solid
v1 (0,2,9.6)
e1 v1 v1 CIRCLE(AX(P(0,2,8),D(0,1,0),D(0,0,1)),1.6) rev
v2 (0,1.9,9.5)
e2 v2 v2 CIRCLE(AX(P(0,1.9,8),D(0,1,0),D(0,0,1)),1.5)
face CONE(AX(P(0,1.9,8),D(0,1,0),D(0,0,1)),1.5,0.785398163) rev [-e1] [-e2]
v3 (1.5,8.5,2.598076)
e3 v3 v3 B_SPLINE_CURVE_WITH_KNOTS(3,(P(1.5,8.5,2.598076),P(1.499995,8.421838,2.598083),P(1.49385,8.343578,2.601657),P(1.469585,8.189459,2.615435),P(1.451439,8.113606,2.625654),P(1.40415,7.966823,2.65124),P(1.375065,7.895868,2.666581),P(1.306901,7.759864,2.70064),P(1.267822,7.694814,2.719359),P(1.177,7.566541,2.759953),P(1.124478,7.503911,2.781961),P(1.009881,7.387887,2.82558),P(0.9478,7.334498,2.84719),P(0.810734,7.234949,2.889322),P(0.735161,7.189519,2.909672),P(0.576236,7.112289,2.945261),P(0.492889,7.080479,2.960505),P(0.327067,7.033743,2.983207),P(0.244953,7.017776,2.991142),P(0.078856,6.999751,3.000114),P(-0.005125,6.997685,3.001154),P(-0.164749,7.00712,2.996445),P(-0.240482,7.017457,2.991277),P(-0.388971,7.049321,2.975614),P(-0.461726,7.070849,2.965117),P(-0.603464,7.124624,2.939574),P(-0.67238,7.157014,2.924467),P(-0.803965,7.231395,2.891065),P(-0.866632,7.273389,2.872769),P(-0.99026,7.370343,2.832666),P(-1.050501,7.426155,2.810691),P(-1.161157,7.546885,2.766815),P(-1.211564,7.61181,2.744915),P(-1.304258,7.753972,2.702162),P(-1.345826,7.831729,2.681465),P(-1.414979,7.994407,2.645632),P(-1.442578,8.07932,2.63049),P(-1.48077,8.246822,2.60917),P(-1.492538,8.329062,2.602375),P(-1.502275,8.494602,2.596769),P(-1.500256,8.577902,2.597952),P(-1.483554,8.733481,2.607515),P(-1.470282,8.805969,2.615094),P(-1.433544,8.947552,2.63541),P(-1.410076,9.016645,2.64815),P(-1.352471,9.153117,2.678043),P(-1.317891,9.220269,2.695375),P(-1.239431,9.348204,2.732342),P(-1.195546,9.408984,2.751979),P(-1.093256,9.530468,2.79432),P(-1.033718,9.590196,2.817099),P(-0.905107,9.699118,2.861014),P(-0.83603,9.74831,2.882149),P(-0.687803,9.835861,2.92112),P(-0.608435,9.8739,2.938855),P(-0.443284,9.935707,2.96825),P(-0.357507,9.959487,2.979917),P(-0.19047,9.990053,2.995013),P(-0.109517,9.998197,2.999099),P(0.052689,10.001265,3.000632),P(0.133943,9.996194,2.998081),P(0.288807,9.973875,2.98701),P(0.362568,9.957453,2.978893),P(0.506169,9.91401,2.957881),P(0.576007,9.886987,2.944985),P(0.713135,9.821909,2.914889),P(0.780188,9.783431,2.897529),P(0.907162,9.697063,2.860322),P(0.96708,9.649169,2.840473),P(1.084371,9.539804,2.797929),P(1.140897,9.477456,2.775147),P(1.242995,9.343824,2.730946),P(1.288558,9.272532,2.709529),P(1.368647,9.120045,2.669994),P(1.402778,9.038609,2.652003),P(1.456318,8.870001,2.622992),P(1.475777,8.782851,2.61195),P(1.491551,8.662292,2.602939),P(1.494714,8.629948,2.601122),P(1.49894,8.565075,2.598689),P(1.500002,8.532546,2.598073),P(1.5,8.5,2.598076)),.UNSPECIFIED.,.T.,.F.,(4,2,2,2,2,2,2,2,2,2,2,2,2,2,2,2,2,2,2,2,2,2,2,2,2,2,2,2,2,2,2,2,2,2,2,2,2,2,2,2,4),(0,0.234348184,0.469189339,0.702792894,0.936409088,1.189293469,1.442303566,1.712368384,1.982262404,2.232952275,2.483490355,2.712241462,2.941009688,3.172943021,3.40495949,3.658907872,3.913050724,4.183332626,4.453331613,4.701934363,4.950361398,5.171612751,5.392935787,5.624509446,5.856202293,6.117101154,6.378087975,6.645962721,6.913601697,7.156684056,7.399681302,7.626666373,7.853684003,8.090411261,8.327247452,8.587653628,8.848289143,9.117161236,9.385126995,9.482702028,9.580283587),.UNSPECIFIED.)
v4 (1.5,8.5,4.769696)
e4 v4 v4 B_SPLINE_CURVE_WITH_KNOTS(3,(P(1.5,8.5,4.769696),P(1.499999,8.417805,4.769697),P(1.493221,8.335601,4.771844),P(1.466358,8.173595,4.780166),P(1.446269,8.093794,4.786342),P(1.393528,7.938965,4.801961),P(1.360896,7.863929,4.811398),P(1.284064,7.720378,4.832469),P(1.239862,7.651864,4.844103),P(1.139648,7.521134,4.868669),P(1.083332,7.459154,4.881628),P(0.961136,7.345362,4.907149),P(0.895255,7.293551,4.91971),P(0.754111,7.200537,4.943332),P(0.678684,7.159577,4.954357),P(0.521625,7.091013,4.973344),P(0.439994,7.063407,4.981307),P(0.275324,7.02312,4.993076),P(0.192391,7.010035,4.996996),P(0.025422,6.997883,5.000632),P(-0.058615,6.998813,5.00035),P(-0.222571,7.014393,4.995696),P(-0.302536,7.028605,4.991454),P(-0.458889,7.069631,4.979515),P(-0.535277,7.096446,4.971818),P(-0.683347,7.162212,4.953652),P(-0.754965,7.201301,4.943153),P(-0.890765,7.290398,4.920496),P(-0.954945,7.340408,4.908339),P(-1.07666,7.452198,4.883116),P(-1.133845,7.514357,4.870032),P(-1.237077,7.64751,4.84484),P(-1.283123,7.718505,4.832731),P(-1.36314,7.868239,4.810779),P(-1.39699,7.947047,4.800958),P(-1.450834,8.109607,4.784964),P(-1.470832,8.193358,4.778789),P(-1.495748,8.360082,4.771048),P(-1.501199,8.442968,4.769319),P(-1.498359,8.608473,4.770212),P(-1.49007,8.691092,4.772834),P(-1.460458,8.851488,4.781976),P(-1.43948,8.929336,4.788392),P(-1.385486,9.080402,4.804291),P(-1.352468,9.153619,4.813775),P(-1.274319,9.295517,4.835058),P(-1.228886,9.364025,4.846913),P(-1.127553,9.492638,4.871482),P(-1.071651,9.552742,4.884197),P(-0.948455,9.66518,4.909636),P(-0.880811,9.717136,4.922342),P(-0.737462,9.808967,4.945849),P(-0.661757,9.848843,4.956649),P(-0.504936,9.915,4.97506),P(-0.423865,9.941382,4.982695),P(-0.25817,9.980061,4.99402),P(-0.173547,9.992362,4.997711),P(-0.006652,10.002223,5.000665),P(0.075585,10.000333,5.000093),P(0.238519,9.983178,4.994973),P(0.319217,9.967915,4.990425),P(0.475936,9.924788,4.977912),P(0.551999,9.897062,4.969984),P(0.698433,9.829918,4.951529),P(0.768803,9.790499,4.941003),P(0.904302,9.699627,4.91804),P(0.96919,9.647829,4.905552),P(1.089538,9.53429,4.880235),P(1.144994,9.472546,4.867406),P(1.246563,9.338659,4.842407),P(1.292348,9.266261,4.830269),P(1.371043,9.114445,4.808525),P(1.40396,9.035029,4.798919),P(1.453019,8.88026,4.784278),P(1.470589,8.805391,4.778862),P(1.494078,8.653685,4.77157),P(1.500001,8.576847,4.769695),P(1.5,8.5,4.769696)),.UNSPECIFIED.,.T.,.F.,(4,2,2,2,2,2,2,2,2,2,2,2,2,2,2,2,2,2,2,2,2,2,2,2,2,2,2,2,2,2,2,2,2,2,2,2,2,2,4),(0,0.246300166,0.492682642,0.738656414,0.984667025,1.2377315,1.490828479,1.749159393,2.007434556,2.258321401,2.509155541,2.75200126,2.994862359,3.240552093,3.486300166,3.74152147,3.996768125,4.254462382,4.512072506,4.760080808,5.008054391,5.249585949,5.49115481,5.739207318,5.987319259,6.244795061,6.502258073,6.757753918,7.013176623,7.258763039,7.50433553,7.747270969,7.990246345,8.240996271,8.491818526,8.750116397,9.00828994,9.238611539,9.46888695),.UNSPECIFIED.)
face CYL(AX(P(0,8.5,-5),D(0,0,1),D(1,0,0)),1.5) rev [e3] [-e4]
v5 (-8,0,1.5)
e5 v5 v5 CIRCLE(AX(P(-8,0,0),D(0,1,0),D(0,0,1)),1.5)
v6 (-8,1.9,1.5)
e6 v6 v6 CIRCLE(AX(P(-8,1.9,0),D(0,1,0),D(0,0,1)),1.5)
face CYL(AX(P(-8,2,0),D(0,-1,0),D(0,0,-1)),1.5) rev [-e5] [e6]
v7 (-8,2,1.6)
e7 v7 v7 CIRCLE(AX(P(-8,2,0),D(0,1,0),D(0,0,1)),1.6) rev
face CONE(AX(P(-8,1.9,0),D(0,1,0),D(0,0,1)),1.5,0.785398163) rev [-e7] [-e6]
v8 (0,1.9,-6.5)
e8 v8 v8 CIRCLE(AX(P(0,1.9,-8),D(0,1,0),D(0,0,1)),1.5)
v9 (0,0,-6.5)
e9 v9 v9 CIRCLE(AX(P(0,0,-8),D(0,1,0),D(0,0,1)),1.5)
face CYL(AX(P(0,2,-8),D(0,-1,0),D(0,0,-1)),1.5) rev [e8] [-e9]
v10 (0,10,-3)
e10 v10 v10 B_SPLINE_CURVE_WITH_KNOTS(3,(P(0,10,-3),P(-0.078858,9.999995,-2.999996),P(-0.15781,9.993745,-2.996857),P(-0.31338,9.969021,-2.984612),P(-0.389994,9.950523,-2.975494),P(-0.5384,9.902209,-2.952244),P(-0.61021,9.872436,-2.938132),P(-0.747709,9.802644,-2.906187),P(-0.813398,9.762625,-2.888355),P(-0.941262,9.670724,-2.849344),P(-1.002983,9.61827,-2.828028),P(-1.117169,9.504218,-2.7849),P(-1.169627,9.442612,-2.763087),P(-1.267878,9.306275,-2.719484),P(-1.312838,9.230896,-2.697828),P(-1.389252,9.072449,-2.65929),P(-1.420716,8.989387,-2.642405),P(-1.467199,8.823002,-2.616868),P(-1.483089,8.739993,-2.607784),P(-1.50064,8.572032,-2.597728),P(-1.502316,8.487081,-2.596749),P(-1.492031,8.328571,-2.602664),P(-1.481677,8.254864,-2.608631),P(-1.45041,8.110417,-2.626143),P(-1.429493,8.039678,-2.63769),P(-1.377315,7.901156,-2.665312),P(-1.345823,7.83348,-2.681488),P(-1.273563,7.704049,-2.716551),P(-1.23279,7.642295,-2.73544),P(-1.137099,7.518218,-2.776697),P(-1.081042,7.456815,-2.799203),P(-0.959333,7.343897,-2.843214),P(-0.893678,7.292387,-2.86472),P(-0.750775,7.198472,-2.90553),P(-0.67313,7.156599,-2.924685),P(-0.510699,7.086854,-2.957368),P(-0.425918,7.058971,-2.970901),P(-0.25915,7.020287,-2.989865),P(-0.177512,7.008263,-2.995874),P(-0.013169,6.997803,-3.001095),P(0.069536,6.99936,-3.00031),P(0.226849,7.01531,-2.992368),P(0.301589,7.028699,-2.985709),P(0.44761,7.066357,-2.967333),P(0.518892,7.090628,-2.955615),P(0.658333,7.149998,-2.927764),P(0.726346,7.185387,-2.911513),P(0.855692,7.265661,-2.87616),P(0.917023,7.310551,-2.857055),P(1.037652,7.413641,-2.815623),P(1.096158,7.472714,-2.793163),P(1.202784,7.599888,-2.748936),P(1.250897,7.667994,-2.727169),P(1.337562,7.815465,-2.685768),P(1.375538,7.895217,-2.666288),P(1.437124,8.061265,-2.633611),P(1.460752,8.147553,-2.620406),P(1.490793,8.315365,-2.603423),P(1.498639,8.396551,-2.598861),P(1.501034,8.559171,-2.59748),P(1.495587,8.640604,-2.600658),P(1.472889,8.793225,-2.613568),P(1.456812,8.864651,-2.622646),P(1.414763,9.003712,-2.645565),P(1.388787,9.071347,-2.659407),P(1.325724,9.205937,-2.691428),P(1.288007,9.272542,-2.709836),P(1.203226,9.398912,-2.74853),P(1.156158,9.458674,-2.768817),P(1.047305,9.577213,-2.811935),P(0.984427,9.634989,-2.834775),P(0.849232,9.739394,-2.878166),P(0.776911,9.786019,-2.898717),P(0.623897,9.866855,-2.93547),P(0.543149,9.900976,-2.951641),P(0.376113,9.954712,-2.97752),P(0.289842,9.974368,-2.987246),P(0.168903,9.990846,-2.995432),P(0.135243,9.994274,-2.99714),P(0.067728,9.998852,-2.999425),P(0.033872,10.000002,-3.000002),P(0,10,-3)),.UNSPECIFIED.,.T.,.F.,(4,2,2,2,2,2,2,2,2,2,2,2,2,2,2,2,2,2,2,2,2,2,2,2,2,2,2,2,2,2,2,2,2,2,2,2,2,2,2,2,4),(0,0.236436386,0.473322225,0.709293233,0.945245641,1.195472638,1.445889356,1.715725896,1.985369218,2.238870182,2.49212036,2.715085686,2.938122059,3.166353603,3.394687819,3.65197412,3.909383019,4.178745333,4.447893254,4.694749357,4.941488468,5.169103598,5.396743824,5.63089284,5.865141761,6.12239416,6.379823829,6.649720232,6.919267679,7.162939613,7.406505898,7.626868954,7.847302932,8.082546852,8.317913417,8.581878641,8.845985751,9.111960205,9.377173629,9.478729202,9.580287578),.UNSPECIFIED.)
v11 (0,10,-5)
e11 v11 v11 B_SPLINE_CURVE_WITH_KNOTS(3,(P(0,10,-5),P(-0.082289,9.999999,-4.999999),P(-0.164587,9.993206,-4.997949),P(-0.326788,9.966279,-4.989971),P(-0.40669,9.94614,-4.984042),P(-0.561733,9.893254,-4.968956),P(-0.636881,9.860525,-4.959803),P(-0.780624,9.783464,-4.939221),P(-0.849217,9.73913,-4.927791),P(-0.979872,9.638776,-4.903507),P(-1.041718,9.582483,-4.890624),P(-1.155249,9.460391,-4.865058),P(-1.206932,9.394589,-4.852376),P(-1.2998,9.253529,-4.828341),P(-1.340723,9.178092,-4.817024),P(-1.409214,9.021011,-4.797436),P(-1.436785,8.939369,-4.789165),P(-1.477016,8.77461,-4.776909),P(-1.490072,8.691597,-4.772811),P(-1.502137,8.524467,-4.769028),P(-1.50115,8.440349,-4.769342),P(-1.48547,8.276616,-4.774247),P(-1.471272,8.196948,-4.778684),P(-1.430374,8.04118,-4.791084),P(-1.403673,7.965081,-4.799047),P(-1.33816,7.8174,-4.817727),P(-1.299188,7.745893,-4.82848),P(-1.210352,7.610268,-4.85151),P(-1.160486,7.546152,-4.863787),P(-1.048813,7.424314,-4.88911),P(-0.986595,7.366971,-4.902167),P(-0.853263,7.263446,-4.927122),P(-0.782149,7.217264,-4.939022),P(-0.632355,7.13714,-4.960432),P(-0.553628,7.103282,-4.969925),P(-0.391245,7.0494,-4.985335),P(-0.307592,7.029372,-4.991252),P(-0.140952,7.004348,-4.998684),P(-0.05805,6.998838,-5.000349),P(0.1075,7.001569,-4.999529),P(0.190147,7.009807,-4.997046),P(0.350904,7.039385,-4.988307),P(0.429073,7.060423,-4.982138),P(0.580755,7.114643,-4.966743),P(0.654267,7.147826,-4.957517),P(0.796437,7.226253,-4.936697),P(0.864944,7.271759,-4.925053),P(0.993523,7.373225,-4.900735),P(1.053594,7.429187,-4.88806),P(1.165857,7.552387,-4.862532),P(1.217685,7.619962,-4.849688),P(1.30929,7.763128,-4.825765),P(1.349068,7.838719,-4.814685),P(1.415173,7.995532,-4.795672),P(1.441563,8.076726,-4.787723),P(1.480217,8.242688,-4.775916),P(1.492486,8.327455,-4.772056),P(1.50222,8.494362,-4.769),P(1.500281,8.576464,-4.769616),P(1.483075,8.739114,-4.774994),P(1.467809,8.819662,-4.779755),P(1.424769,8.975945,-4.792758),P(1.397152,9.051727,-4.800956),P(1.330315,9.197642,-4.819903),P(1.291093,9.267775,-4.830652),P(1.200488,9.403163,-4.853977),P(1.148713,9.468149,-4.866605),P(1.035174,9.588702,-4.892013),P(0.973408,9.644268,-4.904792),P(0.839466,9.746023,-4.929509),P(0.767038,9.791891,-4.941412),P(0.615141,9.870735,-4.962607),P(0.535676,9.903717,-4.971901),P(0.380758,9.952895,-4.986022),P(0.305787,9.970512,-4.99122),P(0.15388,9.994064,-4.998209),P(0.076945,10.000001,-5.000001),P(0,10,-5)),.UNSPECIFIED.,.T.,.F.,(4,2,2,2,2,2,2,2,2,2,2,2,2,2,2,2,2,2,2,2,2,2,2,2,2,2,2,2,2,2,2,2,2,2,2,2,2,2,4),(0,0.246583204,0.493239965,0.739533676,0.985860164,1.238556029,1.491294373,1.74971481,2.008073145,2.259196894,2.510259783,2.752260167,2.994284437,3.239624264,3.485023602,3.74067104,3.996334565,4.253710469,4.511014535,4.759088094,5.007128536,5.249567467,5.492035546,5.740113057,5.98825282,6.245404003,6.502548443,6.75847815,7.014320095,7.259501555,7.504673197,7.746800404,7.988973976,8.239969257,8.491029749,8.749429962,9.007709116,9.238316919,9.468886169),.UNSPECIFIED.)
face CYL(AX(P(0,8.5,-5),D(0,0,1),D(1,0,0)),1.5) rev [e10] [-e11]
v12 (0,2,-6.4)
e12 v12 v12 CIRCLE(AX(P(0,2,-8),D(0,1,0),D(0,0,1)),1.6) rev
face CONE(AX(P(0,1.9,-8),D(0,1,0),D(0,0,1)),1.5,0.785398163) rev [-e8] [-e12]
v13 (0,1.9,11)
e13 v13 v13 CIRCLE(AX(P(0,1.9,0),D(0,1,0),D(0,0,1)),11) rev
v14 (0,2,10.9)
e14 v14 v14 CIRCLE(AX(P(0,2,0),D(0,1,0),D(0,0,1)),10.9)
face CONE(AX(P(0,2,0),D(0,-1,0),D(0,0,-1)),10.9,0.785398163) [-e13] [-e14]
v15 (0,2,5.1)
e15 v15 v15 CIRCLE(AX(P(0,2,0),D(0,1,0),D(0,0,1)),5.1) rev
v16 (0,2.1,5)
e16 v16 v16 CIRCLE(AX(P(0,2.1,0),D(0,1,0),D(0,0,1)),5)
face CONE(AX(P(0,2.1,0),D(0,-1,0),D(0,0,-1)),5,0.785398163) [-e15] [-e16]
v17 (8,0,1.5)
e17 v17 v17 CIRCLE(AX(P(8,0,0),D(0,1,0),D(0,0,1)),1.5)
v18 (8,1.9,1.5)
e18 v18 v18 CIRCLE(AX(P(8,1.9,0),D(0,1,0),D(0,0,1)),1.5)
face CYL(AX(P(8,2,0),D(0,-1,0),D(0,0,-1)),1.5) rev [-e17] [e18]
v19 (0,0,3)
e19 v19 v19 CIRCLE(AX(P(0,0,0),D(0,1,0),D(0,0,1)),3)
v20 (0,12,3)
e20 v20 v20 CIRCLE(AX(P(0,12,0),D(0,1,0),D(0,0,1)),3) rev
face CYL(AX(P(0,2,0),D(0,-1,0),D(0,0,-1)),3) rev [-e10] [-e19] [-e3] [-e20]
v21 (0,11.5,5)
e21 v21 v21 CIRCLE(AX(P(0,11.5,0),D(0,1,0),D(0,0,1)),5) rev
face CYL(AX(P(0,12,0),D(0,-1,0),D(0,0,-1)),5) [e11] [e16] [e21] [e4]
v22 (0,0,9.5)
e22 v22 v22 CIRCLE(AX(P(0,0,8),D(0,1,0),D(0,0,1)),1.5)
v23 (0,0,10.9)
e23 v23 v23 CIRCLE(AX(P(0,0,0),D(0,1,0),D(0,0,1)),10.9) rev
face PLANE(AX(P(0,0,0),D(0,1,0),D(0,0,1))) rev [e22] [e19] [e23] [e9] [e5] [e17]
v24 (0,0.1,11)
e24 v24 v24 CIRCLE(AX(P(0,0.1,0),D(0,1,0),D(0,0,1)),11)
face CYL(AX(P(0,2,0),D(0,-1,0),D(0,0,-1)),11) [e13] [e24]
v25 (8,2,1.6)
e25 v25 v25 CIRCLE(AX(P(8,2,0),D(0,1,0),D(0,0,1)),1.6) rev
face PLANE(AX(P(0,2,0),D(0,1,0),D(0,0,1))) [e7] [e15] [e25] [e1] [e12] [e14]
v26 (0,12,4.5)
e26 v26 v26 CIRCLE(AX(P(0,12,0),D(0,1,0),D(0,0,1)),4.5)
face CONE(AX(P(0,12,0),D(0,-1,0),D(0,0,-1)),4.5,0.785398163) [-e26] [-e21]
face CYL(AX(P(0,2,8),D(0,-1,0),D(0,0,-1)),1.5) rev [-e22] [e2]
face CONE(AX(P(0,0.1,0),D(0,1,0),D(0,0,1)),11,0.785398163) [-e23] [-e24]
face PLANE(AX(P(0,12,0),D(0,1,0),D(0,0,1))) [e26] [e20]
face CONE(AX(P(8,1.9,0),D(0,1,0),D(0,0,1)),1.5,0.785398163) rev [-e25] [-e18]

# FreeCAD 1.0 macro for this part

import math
import FreeCAD as App
import Part
import Sketcher
from FreeCAD import Vector


def edges_at(feature, points):
    """Names of the edges that pass closest to the given points."""
    edges = feature.Shape.Edges
    near = lambda p: min(range(len(edges)), key=lambda i: edges[i].distToShape(Part.Vertex(*p))[0])
    return sorted({f"Edge{near(p) + 1}" for p in points})

doc = App.newDocument("Part")
body = doc.addObject("PartDesign::Body", "Body")

# Sketch on XZ plane
sketch1 = body.newObject("Sketcher::SketchObject", "Sketch")
sketch1.AttachmentSupport = (doc.getObject("XZ_Plane"), [""])
sketch1.MapMode = "FlatFace"
sketch1.addGeometry(Part.Circle(Vector(0, 0, 0), Vector(0, 0, 1), 11), False)
sketch1.addGeometry(Part.Circle(Vector(0, 8, 0), Vector(0, 0, 1), 1.5), False)
sketch1.addGeometry(Part.Circle(Vector(-8, 0, 0), Vector(0, 0, 1), 1.5), False)
sketch1.addGeometry(Part.Circle(Vector(0, 0, 0), Vector(0, 0, 1), 3), False)
sketch1.addGeometry(Part.Circle(Vector(8, 0, 0), Vector(0, 0, 1), 1.5), False)
sketch1.addGeometry(Part.Circle(Vector(0, -8, 0), Vector(0, 0, 1), 1.5), False)
sketch1.addConstraint(Sketcher.Constraint("Coincident", 0, 3, -1, 1))
sketch1.addConstraint(Sketcher.Constraint("Coincident", 3, 3, -1, 1))
sketch1.addConstraint(Sketcher.Constraint("Equal", 1, 2))
sketch1.addConstraint(Sketcher.Constraint("Equal", 2, 4))
sketch1.addConstraint(Sketcher.Constraint("Equal", 4, 5))
sketch1.addConstraint(Sketcher.Constraint("Symmetric", 2, 3, 4, 3, -1, 1))
sketch1.addConstraint(Sketcher.Constraint("Symmetric", 1, 3, 5, 3, -1, 1))
sketch1.addConstraint(Sketcher.Constraint("PointOnObject", 1, 3, -2))
sketch1.addConstraint(Sketcher.Constraint("PointOnObject", 2, 3, -1))
sketch1.addConstraint(Sketcher.Constraint("Diameter", 0, 22.0))
sketch1.addConstraint(Sketcher.Constraint("Diameter", 1, 3.0))
sketch1.addConstraint(Sketcher.Constraint("Diameter", 3, 6.0))
sketch1.addConstraint(Sketcher.Constraint("DistanceY", -1, 1, 1, 3, 8.0))
sketch1.addConstraint(Sketcher.Constraint("DistanceX", 2, 3, -1, 1, 8.0))
pad1 = body.newObject("PartDesign::Pad", "Pad")
pad1.Profile = sketch1
pad1.Length = 2
pad1.Reversed = True

# Sketch on XZ plane
sketch2 = body.newObject("Sketcher::SketchObject", "Sketch001")
sketch2.AttachmentSupport = (doc.getObject("XZ_Plane"), [""])
sketch2.MapMode = "FlatFace"
sketch2.AttachmentOffset = App.Placement(Vector(0, 0, -2), App.Rotation())
sketch2.addGeometry(Part.Circle(Vector(0, 0, 0), Vector(0, 0, 1), 5), False)
sketch2.addGeometry(Part.Circle(Vector(0, 0, 0), Vector(0, 0, 1), 3), False)
sketch2.addConstraint(Sketcher.Constraint("Coincident", 0, 3, -1, 1))
sketch2.addConstraint(Sketcher.Constraint("Coincident", 1, 3, -1, 1))
sketch2.addConstraint(Sketcher.Constraint("Diameter", 0, 10.0))
sketch2.addConstraint(Sketcher.Constraint("Diameter", 1, 6.0))
pad2 = body.newObject("PartDesign::Pad", "Pad001")
pad2.Profile = sketch2
pad2.Length = 10
pad2.Reversed = True
doc.recompute()

chamfer = body.newObject("PartDesign::Chamfer", "Chamfer")
chamfer.Base = (pad2, edges_at(pad2, [(-5, 12, 0)]))
chamfer.Size = 0.5
doc.recompute()

chamfer2 = body.newObject("PartDesign::Chamfer", "Chamfer001")
chamfer2.Base = (chamfer, edges_at(chamfer, [
    (-1.5, 2, -8),
    (-1.5, 2, 8),
    (-5, 2, 0),
    (-9.5, 2, 0),
    (6.5, 2, 0),
    (-11, 2, 0),
    (-11, 0, 0),
]))
chamfer2.Size = 0.1

# Sketch on XY plane
sketch3 = body.newObject("Sketcher::SketchObject", "Sketch002")
sketch3.AttachmentSupport = (doc.getObject("XY_Plane"), [""])
sketch3.MapMode = "FlatFace"
sketch3.AttachmentOffset = App.Placement(Vector(0, 0, 5), App.Rotation())
sketch3.addGeometry(Part.ArcOfCircle(Part.Circle(Vector(0, 8.5, 0), Vector(0, 0, 1), 1.5), math.radians(90), math.radians(270)), False)
sketch3.addGeometry(Part.ArcOfCircle(Part.Circle(Vector(0, 8.5, 0), Vector(0, 0, 1), 1.5), math.radians(-90), math.radians(0)), False)
sketch3.addGeometry(Part.ArcOfCircle(Part.Circle(Vector(0, 8.5, 0), Vector(0, 0, 1), 1.5), math.radians(0), math.radians(90)), False)
sketch3.addConstraint(Sketcher.Constraint("Tangent", 0, 2, 1, 1))
sketch3.addConstraint(Sketcher.Constraint("Tangent", 1, 2, 2, 1))
sketch3.addConstraint(Sketcher.Constraint("Tangent", 2, 2, 0, 1))
sketch3.addConstraint(Sketcher.Constraint("PointOnObject", 0, 3, -2))
sketch3.addConstraint(Sketcher.Constraint("PointOnObject", 0, 2, -2))
sketch3.addConstraint(Sketcher.Constraint("PointOnObject", 2, 2, -2))
sketch3.addConstraint(Sketcher.Constraint("Horizontal", 2, 3, 1, 2))
sketch3.addConstraint(Sketcher.Constraint("Radius", 0, 1.5))
sketch3.addConstraint(Sketcher.Constraint("DistanceY", -1, 1, 0, 2, 7.0))
pocket1 = body.newObject("PartDesign::Pocket", "Pocket")
pocket1.Profile = sketch3
pocket1.Length = 10

doc.recompute()
